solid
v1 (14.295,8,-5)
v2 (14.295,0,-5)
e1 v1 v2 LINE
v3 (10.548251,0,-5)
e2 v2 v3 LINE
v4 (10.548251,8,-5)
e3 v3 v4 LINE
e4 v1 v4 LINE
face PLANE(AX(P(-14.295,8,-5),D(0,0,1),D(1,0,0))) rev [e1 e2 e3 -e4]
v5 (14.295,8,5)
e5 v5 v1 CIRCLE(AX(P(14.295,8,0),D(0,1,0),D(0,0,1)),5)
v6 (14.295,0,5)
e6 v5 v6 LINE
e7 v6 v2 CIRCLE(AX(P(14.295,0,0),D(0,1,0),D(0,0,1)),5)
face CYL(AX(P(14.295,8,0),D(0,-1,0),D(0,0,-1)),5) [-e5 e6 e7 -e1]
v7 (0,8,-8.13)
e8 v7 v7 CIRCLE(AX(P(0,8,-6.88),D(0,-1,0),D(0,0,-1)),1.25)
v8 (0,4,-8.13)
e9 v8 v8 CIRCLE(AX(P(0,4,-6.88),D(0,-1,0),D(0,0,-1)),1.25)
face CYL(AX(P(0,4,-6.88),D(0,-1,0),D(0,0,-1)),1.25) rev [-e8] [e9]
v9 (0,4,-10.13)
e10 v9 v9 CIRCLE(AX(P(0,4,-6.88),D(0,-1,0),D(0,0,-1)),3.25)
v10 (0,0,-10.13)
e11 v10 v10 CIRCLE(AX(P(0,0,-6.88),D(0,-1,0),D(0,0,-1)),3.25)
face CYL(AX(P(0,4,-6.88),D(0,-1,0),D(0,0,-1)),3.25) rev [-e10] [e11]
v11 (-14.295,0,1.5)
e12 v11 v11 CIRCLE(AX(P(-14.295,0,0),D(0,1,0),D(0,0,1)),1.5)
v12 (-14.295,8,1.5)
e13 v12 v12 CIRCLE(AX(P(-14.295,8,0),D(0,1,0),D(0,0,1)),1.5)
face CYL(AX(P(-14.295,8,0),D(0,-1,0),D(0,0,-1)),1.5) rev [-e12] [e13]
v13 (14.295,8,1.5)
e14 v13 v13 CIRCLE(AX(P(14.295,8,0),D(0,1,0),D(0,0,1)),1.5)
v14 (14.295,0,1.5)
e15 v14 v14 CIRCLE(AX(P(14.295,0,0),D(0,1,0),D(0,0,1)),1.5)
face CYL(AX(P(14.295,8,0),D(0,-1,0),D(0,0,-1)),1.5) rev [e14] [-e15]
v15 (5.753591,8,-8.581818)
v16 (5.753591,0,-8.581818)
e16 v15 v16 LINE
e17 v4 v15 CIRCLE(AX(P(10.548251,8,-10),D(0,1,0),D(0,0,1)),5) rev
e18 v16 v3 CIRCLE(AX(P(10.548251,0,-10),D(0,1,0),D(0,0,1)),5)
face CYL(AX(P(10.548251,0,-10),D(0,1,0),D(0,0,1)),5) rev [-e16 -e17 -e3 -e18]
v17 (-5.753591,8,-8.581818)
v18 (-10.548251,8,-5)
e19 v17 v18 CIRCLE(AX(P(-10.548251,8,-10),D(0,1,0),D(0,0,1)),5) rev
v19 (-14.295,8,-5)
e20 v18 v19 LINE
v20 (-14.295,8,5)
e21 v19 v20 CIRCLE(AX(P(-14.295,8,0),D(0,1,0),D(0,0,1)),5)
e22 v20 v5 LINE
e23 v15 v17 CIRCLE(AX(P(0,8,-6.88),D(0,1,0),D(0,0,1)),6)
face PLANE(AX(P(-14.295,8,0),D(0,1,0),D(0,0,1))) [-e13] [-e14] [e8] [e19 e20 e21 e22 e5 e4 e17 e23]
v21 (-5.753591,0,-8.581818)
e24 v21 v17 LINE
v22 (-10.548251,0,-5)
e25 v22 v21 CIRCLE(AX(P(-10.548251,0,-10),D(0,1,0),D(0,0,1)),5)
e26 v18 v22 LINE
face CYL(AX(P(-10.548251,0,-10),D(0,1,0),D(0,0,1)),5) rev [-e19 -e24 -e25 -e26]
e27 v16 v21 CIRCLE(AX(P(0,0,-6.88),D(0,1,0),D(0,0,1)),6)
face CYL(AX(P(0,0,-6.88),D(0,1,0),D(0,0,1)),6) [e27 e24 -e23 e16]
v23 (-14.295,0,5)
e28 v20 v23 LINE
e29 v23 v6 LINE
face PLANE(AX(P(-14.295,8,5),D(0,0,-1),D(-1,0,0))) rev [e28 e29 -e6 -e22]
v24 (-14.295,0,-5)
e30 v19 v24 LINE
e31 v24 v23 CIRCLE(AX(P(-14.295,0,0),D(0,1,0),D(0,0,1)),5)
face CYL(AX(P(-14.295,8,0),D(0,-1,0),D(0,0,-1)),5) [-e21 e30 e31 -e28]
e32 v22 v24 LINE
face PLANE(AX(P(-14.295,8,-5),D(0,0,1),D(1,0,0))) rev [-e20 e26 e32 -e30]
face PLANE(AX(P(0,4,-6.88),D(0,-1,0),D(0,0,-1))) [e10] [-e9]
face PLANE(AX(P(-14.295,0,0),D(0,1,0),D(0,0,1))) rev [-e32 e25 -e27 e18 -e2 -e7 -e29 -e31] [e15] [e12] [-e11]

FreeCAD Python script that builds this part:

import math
import FreeCAD as App
import Part
import Sketcher


def edges_at(feature, points):
    """Names of the edges that pass closest to the given points."""
    edges = feature.Shape.Edges
    near = lambda p: min(range(len(edges)), key=lambda i: edges[i].distToShape(Part.Vertex(*p))[0])
    return sorted({f"Edge{near(p) + 1}" for p in points})

doc = App.newDocument("Part")
body = doc.addObject("PartDesign::Body", "Body")

# Sketch on XZ plane
sketch1 = body.newObject("Sketcher::SketchObject", "Sketch")
sketch1.AttachmentSupport = (doc.getObject("XZ_Plane"), [""])
sketch1.MapMode = "FlatFace"
sketch1.addGeometry(Part.LineSegment(App.Vector(14.3, -5, 0), App.Vector(-14.3, -5, 0)), False)
sketch1.addGeometry(Part.ArcOfCircle(Part.Circle(App.Vector(-14.3, 0, 0), App.Vector(0, 0, 1), 5), math.radians(90), math.radians(270)), False)
sketch1.addGeometry(Part.LineSegment(App.Vector(-14.3, 5, 0), App.Vector(14.3, 5, 0)), False)
sketch1.addGeometry(Part.ArcOfCircle(Part.Circle(App.Vector(14.3, 0, 0), App.Vector(0, 0, 1), 5), math.radians(-90), math.radians(90)), False)
sketch1.addGeometry(Part.Circle(App.Vector(14.3, 0, 0), App.Vector(0, 0, 1), 1.5), False)
sketch1.addGeometry(Part.Circle(App.Vector(-14.3, 0, 0), App.Vector(0, 0, 1), 1.5), False)
sketch1.addConstraint(Sketcher.Constraint("Tangent", 0, 2, 1, 2))
sketch1.addConstraint(Sketcher.Constraint("Tangent", 1, 1, 2, 1))
sketch1.addConstraint(Sketcher.Constraint("Tangent", 2, 2, 3, 2))
sketch1.addConstraint(Sketcher.Constraint("Tangent", 3, 1, 0, 1))
sketch1.addConstraint(Sketcher.Constraint("Horizontal", 0))
sketch1.addConstraint(Sketcher.Constraint("Horizontal", 2))
sketch1.addConstraint(Sketcher.Constraint("Coincident", 4, 3, 3, 3))
sketch1.addConstraint(Sketcher.Constraint("Coincident", 5, 3, 1, 3))
sketch1.addConstraint(Sketcher.Constraint("Equal", 4, 5))
sketch1.addConstraint(Sketcher.Constraint("Symmetric", 1, 3, 3, 3, -1, 1))
sketch1.addConstraint(Sketcher.Constraint("Diameter", 4, 3.0))
sketch1.addConstraint(Sketcher.Constraint("Radius", 1, 5.0))
sketch1.addConstraint(Sketcher.Constraint("DistanceX", 0, 2, 0, 1, 28.59))
pad1 = body.newObject("PartDesign::Pad", "Pad")
pad1.Profile = sketch1
pad1.Length = 8
pad1.Reversed = True

# Sketch on XZ plane
sketch2 = body.newObject("Sketcher::SketchObject", "Sketch001")
sketch2.AttachmentSupport = (doc.getObject("XZ_Plane"), [""])
sketch2.MapMode = "FlatFace"
sketch2.AttachmentOffset = App.Placement(App.Vector(0, 0, -8), App.Rotation())
sketch2.addGeometry(Part.LineSegment(App.Vector(-6, -6.9, 0), App.Vector(-6, -5, 0)), False)
sketch2.addGeometry(Part.LineSegment(App.Vector(-6, -5, 0), App.Vector(6, -5, 0)), False)
sketch2.addGeometry(Part.LineSegment(App.Vector(6, -5, 0), App.Vector(6, -6.9, 0)), False)
sketch2.addGeometry(Part.ArcOfCircle(Part.Circle(App.Vector(0, -6.9, 0), App.Vector(0, 0, 1), 6), math.radians(180), math.radians(360)), False)
sketch2.addConstraint(Sketcher.Constraint("Coincident", 0, 2, 1, 1))
sketch2.addConstraint(Sketcher.Constraint("Coincident", 1, 2, 2, 1))
sketch2.addConstraint(Sketcher.Constraint("Tangent", 2, 2, 3, 2))
sketch2.addConstraint(Sketcher.Constraint("Tangent", 3, 1, 0, 1))
sketch2.addConstraint(Sketcher.Constraint("Vertical", 0))
sketch2.addConstraint(Sketcher.Constraint("Horizontal", 1))
sketch2.addConstraint(Sketcher.Constraint("Vertical", 2))
sketch2.addConstraint(Sketcher.Constraint("PointOnObject", 3, 3, -2))
sketch2.addConstraint(Sketcher.Constraint("Radius", 3, 6.0))
sketch2.addConstraint(Sketcher.Constraint("DistanceY", 0, 2, -1, 1, 5.0))
sketch2.addConstraint(Sketcher.Constraint("DistanceY", 0, 1, 0, 2, 1.88))
pad2 = body.newObject("PartDesign::Pad", "Pad001")
pad2.Profile = sketch2
pad2.Length = 8

# Sketch on XZ plane
sketch3 = body.newObject("Sketcher::SketchObject", "Sketch002")
sketch3.AttachmentSupport = (doc.getObject("XZ_Plane"), [""])
sketch3.MapMode = "FlatFace"
sketch3.addGeometry(Part.Circle(App.Vector(0, -6.9, 0), App.Vector(0, 0, 1), 3.2), False)
sketch3.addConstraint(Sketcher.Constraint("PointOnObject", 0, 3, -2))
sketch3.addConstraint(Sketcher.Constraint("Diameter", 0, 6.5))
sketch3.addConstraint(Sketcher.Constraint("DistanceY", 0, 3, -1, 1, 6.88))
pocket1 = body.newObject("PartDesign::Pocket", "Pocket")
pocket1.Profile = sketch3
pocket1.Length = 4
doc.recompute()

fillet = body.newObject("PartDesign::Fillet", "Fillet")
fillet.Base = (pocket1, edges_at(pocket1, [(-6, 4, -5), (6, 4, -5)]))
fillet.Radius = 5

# Sketch on XZ plane
sketch4 = body.newObject("Sketcher::SketchObject", "Sketch003")
sketch4.AttachmentSupport = (doc.getObject("XZ_Plane"), [""])
sketch4.MapMode = "FlatFace"
sketch4.AttachmentOffset = App.Placement(App.Vector(0, 0, -4), App.Rotation())
sketch4.addGeometry(Part.Circle(App.Vector(0, -6.9, 0), App.Vector(0, 0, 1), 1.2), False)
sketch4.addConstraint(Sketcher.Constraint("PointOnObject", 0, 3, -2))
sketch4.addConstraint(Sketcher.Constraint("Diameter", 0, 2.5))
sketch4.addConstraint(Sketcher.Constraint("DistanceY", 0, 3, -1, 1, 6.88))
doc.recompute()
hole = body.newObject("PartDesign::Hole", "Hole")
hole.Profile = sketch4
hole.ThreadType = "None"
hole.Diameter = 2.5
hole.DepthType = "ThroughAll"

doc.recompute()
